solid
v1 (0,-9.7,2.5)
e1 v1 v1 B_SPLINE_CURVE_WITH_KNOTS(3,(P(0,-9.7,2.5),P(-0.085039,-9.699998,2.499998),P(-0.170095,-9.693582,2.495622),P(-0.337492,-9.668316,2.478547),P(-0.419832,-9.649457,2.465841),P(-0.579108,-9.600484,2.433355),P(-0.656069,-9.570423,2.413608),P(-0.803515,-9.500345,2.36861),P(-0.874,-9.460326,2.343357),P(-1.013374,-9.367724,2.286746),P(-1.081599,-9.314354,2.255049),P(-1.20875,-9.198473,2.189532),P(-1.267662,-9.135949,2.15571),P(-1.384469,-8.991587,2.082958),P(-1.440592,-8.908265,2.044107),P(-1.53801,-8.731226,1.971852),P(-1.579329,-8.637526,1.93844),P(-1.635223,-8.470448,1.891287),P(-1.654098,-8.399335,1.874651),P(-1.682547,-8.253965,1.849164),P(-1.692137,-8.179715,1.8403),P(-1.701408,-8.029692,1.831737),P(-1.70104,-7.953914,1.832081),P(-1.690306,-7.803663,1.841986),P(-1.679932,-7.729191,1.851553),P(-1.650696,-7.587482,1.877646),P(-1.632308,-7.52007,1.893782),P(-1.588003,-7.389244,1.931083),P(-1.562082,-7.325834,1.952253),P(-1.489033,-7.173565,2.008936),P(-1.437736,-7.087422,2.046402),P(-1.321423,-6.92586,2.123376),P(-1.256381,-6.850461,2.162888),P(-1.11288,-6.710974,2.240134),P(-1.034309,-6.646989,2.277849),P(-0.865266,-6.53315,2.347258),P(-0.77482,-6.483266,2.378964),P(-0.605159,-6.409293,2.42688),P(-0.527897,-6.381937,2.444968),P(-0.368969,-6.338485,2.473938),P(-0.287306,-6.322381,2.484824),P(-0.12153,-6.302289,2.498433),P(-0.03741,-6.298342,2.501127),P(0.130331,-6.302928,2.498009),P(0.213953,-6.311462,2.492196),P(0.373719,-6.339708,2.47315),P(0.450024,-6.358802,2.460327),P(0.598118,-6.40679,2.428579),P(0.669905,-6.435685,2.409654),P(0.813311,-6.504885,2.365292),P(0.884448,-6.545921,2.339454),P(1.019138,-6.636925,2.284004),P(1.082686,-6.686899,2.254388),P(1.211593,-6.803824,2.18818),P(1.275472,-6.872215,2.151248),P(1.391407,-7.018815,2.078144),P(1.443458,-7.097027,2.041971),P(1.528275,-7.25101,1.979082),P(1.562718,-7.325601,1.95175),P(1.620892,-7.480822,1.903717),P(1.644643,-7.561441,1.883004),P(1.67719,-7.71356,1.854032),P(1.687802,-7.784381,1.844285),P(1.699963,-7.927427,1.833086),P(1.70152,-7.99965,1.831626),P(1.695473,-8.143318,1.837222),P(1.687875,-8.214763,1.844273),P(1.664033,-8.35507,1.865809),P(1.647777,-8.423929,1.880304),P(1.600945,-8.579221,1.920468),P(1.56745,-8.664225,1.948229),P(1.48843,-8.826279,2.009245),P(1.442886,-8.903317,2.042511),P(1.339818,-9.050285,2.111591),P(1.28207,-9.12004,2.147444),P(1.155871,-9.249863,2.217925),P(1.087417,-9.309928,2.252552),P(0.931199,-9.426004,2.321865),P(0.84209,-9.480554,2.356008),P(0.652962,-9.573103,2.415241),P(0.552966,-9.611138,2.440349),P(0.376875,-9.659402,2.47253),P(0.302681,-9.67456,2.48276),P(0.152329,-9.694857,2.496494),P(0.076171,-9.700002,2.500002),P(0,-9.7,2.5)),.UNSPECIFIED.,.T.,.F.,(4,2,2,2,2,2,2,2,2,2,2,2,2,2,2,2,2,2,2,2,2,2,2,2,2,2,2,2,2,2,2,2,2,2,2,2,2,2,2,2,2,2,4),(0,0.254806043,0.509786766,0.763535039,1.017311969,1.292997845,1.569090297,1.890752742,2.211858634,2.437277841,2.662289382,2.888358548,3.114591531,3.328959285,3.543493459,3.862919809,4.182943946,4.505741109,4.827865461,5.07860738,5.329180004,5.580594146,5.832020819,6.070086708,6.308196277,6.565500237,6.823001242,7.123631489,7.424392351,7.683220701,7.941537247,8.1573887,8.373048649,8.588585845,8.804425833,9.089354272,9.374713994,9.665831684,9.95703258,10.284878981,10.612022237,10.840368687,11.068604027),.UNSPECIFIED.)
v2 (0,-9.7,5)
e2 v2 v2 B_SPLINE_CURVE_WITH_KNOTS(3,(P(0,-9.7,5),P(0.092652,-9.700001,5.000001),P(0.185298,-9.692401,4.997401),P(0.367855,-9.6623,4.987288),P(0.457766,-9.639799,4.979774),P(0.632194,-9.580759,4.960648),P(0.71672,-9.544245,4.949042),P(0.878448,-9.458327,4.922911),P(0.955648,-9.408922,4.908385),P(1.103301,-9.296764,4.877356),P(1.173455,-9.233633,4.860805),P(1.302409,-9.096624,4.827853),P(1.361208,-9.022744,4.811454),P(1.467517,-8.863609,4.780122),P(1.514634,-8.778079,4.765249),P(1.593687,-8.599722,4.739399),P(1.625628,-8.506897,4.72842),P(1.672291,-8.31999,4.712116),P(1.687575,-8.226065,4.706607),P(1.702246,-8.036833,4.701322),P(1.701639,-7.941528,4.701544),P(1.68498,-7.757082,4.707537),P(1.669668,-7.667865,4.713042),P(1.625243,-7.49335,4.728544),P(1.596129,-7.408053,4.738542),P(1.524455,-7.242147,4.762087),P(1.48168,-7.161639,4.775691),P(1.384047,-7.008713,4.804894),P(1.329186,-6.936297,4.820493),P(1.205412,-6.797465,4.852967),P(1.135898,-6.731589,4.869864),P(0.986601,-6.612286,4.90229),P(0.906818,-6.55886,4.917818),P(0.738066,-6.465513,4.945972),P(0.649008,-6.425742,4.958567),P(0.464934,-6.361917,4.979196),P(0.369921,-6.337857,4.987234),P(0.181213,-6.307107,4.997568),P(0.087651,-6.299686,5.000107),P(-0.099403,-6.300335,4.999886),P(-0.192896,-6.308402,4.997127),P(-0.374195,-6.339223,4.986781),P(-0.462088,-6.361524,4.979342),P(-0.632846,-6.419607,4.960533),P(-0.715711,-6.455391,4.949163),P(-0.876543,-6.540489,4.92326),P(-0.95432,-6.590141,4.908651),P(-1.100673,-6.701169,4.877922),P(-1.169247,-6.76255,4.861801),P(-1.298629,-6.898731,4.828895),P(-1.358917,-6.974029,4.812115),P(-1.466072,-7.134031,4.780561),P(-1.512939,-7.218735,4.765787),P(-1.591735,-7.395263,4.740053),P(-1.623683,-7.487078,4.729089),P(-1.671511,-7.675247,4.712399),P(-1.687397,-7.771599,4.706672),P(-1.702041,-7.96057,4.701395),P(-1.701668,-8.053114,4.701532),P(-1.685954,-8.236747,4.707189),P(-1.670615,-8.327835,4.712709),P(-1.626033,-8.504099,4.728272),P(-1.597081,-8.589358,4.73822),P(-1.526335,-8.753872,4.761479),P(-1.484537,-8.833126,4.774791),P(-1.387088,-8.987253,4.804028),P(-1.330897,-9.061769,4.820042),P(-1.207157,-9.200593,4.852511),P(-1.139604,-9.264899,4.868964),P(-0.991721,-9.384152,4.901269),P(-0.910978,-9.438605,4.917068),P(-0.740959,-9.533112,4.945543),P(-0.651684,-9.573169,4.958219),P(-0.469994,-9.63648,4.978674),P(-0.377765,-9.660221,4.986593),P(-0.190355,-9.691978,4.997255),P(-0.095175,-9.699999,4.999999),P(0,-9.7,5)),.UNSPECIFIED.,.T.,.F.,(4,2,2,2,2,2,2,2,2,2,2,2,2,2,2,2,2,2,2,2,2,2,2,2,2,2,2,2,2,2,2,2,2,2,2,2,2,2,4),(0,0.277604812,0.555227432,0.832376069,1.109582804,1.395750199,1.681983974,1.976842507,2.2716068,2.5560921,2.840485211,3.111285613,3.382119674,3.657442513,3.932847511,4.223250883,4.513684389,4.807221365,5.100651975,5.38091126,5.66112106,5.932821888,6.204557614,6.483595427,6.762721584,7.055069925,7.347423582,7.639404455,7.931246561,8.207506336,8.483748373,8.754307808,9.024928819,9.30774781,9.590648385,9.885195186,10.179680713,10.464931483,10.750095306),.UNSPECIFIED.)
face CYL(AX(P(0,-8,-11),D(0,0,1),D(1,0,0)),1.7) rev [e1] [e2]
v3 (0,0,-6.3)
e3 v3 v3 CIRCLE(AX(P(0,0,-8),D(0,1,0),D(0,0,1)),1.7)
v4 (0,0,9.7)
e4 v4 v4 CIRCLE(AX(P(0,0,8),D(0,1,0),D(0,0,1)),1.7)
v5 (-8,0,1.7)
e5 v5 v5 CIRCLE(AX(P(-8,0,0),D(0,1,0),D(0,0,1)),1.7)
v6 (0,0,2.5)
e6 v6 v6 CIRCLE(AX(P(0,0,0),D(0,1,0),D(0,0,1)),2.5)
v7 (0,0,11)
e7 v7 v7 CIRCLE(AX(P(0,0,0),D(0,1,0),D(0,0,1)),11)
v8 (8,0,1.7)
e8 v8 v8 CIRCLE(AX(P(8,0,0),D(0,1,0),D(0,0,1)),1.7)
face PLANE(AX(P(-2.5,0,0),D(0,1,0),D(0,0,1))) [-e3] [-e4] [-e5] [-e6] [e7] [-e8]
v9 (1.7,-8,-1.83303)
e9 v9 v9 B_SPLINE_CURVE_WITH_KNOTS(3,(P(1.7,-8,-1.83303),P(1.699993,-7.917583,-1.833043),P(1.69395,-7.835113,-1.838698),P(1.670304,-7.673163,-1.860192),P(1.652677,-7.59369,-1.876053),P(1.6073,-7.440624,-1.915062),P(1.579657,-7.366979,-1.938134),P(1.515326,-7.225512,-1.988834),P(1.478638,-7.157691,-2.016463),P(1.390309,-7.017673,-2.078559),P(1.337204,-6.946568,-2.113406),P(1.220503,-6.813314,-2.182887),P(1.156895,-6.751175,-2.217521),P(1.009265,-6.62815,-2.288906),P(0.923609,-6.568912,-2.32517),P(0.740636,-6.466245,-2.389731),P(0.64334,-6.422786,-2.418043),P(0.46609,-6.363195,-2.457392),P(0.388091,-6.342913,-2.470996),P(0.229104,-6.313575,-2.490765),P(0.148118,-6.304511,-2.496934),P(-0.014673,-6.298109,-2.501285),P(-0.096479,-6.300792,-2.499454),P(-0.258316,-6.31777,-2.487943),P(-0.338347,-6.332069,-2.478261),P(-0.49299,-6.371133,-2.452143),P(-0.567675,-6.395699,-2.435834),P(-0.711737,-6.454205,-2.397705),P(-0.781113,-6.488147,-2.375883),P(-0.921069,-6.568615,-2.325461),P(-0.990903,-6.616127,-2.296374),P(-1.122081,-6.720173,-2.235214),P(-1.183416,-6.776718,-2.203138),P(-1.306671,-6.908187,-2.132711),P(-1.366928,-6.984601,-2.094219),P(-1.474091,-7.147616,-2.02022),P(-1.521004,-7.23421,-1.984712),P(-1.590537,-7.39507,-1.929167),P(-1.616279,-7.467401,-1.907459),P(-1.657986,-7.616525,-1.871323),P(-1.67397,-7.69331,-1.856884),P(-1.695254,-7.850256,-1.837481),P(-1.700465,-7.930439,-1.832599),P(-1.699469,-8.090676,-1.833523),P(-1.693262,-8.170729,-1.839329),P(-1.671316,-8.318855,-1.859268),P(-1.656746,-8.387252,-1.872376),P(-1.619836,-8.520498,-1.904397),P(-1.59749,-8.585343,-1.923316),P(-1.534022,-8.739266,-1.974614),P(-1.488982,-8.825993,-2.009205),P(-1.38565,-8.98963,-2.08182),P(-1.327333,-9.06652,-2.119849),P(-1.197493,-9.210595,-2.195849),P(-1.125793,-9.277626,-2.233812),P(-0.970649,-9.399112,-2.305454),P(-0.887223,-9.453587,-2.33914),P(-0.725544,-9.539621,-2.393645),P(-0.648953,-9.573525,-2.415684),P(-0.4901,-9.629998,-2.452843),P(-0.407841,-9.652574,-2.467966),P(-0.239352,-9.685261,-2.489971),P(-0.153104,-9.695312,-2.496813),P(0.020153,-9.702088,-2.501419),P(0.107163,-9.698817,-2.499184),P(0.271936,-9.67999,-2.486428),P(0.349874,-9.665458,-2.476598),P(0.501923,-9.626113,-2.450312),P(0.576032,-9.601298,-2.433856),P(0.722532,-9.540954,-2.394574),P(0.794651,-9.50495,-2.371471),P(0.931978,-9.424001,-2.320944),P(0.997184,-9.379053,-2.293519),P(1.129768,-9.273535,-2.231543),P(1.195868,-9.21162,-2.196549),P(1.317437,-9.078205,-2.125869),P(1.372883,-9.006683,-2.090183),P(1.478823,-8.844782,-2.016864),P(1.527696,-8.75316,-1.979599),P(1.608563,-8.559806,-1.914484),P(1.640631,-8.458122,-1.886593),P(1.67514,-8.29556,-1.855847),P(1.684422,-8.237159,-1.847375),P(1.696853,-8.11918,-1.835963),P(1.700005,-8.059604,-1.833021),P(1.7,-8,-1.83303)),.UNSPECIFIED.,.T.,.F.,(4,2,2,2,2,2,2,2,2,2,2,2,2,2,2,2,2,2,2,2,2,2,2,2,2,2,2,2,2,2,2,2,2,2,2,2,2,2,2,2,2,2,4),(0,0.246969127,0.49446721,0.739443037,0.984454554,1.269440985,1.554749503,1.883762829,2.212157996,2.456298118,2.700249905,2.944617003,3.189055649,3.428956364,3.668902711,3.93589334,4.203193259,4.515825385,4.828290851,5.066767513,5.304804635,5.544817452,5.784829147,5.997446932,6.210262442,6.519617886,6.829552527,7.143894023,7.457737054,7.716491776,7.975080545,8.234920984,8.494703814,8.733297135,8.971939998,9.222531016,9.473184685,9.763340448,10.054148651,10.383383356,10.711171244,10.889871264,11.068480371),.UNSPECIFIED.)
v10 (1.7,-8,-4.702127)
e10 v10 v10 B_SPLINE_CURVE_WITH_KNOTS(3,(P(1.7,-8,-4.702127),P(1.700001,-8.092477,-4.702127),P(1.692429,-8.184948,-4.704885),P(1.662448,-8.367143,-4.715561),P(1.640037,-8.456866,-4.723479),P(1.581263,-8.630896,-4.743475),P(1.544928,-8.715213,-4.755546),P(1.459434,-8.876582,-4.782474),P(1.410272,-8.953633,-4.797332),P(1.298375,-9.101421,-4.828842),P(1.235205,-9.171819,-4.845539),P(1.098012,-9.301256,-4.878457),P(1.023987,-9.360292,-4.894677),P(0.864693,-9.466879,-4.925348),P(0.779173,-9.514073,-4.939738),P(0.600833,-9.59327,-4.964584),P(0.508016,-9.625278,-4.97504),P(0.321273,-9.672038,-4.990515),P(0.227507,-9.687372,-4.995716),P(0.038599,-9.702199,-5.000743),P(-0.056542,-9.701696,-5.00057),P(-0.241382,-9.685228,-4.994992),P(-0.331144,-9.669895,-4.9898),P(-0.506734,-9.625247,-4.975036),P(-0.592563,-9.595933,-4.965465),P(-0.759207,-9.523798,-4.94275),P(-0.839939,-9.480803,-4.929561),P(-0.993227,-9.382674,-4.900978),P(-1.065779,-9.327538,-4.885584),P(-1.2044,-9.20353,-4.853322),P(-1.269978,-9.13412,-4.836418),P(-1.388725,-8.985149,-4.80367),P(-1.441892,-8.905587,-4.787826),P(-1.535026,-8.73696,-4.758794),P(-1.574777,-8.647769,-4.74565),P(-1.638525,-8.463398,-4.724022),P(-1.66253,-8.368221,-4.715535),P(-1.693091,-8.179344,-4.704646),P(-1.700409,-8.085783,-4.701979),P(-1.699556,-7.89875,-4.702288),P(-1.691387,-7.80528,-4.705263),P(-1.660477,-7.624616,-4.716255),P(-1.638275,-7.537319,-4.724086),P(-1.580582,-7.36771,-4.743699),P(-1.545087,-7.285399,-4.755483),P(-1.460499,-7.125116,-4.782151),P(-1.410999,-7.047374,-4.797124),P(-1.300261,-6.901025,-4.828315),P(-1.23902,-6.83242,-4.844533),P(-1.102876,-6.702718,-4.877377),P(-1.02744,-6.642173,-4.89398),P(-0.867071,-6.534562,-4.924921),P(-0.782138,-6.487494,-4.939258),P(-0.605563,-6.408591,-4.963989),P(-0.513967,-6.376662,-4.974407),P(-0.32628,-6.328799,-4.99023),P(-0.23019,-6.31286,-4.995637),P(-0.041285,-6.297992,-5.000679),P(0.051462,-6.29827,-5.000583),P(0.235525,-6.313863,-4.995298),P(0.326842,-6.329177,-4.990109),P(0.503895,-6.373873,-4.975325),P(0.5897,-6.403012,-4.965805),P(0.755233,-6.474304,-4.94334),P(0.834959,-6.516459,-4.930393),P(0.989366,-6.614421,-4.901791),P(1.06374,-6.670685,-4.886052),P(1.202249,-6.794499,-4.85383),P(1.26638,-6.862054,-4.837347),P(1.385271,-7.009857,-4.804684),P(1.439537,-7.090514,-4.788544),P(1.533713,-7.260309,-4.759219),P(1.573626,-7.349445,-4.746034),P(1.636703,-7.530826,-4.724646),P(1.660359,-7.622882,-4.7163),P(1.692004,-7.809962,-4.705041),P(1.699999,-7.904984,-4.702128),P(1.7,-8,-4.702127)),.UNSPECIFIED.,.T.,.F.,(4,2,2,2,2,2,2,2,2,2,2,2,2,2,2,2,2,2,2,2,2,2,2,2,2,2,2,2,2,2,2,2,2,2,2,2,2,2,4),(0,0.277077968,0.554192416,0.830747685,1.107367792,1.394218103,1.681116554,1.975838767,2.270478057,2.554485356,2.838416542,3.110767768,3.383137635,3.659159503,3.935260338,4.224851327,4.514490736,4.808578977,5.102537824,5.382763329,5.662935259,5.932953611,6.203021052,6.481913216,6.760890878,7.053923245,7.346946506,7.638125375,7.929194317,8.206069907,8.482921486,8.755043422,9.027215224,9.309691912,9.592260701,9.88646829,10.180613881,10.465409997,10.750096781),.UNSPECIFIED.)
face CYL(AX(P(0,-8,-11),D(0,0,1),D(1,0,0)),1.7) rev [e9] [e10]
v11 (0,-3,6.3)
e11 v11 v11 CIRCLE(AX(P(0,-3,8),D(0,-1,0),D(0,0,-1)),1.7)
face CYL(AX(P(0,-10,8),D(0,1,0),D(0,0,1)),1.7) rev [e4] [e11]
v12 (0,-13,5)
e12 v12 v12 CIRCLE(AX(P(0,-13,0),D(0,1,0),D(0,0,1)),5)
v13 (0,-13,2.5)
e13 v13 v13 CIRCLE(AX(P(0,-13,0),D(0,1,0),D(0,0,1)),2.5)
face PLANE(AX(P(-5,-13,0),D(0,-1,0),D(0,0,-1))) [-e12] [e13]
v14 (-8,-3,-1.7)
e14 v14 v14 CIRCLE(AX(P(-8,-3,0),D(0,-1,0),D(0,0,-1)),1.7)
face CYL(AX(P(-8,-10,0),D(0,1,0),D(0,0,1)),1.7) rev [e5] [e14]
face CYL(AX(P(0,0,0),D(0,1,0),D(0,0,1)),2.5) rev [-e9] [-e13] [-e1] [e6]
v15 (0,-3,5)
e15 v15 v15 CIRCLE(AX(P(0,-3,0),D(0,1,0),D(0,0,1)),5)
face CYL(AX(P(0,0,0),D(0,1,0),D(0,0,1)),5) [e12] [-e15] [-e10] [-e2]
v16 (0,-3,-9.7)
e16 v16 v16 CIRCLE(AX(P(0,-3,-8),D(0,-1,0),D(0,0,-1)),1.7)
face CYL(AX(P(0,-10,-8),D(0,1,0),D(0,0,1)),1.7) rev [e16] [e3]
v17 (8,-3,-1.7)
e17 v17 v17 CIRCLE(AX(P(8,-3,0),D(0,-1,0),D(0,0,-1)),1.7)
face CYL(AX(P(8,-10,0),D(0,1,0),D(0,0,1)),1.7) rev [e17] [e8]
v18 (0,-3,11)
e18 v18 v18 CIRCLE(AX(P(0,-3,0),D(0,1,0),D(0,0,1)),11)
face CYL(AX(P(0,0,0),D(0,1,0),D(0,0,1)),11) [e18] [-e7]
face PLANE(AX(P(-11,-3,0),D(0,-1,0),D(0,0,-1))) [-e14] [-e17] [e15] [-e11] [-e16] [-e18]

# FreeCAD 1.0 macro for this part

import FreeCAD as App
import Part
import Sketcher

V = App.Vector

doc = App.newDocument("Part")
body = doc.addObject("PartDesign::Body", "Body")

# Sketch on XY plane
sketch1 = body.newObject("Sketcher::SketchObject", "Sketch")
sketch1.AttachmentSupport = (doc.getObject("XY_Plane"), [""])
sketch1.MapMode = "FlatFace"
sketch1.addGeometry([
    Part.LineSegment(V(-2.5, 0, 0), V(-11, 0, 0)),  # 0
    Part.LineSegment(V(-11, 0, 0), V(-11, -3, 0)),  # 1
    Part.LineSegment(V(-11, -3, 0), V(-5, -3, 0)),  # 2
    Part.LineSegment(V(-5, -3, 0), V(-5, -13, 0)),  # 3
    Part.LineSegment(V(-5, -13, 0), V(-2.5, -13, 0)),  # 4
    Part.LineSegment(V(-2.5, -13, 0), V(-2.5, 0, 0)),  # 5
], False)
sketch1.addConstraint([
    Sketcher.Constraint("Coincident", 0, 2, 1, 1),
    Sketcher.Constraint("Coincident", 1, 2, 2, 1),
    Sketcher.Constraint("Coincident", 2, 2, 3, 1),
    Sketcher.Constraint("Coincident", 3, 2, 4, 1),
    Sketcher.Constraint("Coincident", 4, 2, 5, 1),
    Sketcher.Constraint("Coincident", 5, 2, 0, 1),
    Sketcher.Constraint("Horizontal", 0),
    Sketcher.Constraint("Vertical", 1),
    Sketcher.Constraint("Horizontal", 2),
    Sketcher.Constraint("Vertical", 3),
    Sketcher.Constraint("Horizontal", 4),
    Sketcher.Constraint("Vertical", 5),
    Sketcher.Constraint("PointOnObject", 0, 2, -1),
    Sketcher.Constraint("DistanceX", 2, 1, 2, 2, 6.0),
    Sketcher.Constraint("DistanceY", 1, 2, 1, 1, 3.0),
    Sketcher.Constraint("DistanceY", 3, 2, 3, 1, 10.0),
    Sketcher.Constraint("DistanceX", 0, 2, 0, 1, 8.5),
    Sketcher.Constraint("DistanceX", 0, 2, -1, 1, 11.0),
])
revolution = body.newObject("PartDesign::Revolution", "Revolution")
revolution.Profile = sketch1
revolution.ReferenceAxis = (sketch1, ["V_Axis"])
revolution.Angle = 360

# Sketch on XZ plane
sketch2 = body.newObject("Sketcher::SketchObject", "Sketch001")
sketch2.AttachmentSupport = (doc.getObject("XZ_Plane"), [""])
sketch2.MapMode = "FlatFace"
sketch2.addGeometry([
    Part.Circle(V(0, -8, 0), V(0, 0, 1), 1.7),
    Part.Circle(V(8, 0, 0), V(0, 0, 1), 1.7),
    Part.Circle(V(0, 8, 0), V(0, 0, 1), 1.7),
    Part.Circle(V(-8, 0, 0), V(0, 0, 1), 1.7),
], False)
sketch2.addConstraint([
    Sketcher.Constraint("Equal", 0, 1),
    Sketcher.Constraint("Equal", 1, 2),
    Sketcher.Constraint("Equal", 2, 3),
    Sketcher.Constraint("Symmetric", 0, 3, 2, 3, -1, 1),
    Sketcher.Constraint("Symmetric", 1, 3, 3, 3, -1, 1),
    Sketcher.Constraint("PointOnObject", 0, 3, -2),
    Sketcher.Constraint("PointOnObject", 1, 3, -1),
    Sketcher.Constraint("Diameter", 0, 3.4),
    Sketcher.Constraint("DistanceY", 0, 3, -1, 1, 8.0),
    Sketcher.Constraint("DistanceX", -1, 1, 1, 3, 8.0),
])
pocket1 = body.newObject("PartDesign::Pocket", "Pocket")
pocket1.Profile = sketch2
pocket1.Length = 10
pocket1.Reversed = True

# Sketch on XY plane
sketch3 = body.newObject("Sketcher::SketchObject", "Sketch002")
sketch3.AttachmentSupport = (doc.getObject("XY_Plane"), [""])
sketch3.MapMode = "FlatFace"
sketch3.addGeometry(Part.Circle(V(0, -8, 0), V(0, 0, 1), 1.7), False)
sketch3.addConstraint([
    Sketcher.Constraint("PointOnObject", 0, 3, -2),
    Sketcher.Constraint("Diameter", 0, 3.4),
    Sketcher.Constraint("DistanceY", 0, 3, -1, 1, 8.0),
])
pocket2 = body.newObject("PartDesign::Pocket", "Pocket001")
pocket2.Profile = sketch3
pocket2.Type = "ThroughAll"
pocket2.Midplane = True

doc.recompute()
